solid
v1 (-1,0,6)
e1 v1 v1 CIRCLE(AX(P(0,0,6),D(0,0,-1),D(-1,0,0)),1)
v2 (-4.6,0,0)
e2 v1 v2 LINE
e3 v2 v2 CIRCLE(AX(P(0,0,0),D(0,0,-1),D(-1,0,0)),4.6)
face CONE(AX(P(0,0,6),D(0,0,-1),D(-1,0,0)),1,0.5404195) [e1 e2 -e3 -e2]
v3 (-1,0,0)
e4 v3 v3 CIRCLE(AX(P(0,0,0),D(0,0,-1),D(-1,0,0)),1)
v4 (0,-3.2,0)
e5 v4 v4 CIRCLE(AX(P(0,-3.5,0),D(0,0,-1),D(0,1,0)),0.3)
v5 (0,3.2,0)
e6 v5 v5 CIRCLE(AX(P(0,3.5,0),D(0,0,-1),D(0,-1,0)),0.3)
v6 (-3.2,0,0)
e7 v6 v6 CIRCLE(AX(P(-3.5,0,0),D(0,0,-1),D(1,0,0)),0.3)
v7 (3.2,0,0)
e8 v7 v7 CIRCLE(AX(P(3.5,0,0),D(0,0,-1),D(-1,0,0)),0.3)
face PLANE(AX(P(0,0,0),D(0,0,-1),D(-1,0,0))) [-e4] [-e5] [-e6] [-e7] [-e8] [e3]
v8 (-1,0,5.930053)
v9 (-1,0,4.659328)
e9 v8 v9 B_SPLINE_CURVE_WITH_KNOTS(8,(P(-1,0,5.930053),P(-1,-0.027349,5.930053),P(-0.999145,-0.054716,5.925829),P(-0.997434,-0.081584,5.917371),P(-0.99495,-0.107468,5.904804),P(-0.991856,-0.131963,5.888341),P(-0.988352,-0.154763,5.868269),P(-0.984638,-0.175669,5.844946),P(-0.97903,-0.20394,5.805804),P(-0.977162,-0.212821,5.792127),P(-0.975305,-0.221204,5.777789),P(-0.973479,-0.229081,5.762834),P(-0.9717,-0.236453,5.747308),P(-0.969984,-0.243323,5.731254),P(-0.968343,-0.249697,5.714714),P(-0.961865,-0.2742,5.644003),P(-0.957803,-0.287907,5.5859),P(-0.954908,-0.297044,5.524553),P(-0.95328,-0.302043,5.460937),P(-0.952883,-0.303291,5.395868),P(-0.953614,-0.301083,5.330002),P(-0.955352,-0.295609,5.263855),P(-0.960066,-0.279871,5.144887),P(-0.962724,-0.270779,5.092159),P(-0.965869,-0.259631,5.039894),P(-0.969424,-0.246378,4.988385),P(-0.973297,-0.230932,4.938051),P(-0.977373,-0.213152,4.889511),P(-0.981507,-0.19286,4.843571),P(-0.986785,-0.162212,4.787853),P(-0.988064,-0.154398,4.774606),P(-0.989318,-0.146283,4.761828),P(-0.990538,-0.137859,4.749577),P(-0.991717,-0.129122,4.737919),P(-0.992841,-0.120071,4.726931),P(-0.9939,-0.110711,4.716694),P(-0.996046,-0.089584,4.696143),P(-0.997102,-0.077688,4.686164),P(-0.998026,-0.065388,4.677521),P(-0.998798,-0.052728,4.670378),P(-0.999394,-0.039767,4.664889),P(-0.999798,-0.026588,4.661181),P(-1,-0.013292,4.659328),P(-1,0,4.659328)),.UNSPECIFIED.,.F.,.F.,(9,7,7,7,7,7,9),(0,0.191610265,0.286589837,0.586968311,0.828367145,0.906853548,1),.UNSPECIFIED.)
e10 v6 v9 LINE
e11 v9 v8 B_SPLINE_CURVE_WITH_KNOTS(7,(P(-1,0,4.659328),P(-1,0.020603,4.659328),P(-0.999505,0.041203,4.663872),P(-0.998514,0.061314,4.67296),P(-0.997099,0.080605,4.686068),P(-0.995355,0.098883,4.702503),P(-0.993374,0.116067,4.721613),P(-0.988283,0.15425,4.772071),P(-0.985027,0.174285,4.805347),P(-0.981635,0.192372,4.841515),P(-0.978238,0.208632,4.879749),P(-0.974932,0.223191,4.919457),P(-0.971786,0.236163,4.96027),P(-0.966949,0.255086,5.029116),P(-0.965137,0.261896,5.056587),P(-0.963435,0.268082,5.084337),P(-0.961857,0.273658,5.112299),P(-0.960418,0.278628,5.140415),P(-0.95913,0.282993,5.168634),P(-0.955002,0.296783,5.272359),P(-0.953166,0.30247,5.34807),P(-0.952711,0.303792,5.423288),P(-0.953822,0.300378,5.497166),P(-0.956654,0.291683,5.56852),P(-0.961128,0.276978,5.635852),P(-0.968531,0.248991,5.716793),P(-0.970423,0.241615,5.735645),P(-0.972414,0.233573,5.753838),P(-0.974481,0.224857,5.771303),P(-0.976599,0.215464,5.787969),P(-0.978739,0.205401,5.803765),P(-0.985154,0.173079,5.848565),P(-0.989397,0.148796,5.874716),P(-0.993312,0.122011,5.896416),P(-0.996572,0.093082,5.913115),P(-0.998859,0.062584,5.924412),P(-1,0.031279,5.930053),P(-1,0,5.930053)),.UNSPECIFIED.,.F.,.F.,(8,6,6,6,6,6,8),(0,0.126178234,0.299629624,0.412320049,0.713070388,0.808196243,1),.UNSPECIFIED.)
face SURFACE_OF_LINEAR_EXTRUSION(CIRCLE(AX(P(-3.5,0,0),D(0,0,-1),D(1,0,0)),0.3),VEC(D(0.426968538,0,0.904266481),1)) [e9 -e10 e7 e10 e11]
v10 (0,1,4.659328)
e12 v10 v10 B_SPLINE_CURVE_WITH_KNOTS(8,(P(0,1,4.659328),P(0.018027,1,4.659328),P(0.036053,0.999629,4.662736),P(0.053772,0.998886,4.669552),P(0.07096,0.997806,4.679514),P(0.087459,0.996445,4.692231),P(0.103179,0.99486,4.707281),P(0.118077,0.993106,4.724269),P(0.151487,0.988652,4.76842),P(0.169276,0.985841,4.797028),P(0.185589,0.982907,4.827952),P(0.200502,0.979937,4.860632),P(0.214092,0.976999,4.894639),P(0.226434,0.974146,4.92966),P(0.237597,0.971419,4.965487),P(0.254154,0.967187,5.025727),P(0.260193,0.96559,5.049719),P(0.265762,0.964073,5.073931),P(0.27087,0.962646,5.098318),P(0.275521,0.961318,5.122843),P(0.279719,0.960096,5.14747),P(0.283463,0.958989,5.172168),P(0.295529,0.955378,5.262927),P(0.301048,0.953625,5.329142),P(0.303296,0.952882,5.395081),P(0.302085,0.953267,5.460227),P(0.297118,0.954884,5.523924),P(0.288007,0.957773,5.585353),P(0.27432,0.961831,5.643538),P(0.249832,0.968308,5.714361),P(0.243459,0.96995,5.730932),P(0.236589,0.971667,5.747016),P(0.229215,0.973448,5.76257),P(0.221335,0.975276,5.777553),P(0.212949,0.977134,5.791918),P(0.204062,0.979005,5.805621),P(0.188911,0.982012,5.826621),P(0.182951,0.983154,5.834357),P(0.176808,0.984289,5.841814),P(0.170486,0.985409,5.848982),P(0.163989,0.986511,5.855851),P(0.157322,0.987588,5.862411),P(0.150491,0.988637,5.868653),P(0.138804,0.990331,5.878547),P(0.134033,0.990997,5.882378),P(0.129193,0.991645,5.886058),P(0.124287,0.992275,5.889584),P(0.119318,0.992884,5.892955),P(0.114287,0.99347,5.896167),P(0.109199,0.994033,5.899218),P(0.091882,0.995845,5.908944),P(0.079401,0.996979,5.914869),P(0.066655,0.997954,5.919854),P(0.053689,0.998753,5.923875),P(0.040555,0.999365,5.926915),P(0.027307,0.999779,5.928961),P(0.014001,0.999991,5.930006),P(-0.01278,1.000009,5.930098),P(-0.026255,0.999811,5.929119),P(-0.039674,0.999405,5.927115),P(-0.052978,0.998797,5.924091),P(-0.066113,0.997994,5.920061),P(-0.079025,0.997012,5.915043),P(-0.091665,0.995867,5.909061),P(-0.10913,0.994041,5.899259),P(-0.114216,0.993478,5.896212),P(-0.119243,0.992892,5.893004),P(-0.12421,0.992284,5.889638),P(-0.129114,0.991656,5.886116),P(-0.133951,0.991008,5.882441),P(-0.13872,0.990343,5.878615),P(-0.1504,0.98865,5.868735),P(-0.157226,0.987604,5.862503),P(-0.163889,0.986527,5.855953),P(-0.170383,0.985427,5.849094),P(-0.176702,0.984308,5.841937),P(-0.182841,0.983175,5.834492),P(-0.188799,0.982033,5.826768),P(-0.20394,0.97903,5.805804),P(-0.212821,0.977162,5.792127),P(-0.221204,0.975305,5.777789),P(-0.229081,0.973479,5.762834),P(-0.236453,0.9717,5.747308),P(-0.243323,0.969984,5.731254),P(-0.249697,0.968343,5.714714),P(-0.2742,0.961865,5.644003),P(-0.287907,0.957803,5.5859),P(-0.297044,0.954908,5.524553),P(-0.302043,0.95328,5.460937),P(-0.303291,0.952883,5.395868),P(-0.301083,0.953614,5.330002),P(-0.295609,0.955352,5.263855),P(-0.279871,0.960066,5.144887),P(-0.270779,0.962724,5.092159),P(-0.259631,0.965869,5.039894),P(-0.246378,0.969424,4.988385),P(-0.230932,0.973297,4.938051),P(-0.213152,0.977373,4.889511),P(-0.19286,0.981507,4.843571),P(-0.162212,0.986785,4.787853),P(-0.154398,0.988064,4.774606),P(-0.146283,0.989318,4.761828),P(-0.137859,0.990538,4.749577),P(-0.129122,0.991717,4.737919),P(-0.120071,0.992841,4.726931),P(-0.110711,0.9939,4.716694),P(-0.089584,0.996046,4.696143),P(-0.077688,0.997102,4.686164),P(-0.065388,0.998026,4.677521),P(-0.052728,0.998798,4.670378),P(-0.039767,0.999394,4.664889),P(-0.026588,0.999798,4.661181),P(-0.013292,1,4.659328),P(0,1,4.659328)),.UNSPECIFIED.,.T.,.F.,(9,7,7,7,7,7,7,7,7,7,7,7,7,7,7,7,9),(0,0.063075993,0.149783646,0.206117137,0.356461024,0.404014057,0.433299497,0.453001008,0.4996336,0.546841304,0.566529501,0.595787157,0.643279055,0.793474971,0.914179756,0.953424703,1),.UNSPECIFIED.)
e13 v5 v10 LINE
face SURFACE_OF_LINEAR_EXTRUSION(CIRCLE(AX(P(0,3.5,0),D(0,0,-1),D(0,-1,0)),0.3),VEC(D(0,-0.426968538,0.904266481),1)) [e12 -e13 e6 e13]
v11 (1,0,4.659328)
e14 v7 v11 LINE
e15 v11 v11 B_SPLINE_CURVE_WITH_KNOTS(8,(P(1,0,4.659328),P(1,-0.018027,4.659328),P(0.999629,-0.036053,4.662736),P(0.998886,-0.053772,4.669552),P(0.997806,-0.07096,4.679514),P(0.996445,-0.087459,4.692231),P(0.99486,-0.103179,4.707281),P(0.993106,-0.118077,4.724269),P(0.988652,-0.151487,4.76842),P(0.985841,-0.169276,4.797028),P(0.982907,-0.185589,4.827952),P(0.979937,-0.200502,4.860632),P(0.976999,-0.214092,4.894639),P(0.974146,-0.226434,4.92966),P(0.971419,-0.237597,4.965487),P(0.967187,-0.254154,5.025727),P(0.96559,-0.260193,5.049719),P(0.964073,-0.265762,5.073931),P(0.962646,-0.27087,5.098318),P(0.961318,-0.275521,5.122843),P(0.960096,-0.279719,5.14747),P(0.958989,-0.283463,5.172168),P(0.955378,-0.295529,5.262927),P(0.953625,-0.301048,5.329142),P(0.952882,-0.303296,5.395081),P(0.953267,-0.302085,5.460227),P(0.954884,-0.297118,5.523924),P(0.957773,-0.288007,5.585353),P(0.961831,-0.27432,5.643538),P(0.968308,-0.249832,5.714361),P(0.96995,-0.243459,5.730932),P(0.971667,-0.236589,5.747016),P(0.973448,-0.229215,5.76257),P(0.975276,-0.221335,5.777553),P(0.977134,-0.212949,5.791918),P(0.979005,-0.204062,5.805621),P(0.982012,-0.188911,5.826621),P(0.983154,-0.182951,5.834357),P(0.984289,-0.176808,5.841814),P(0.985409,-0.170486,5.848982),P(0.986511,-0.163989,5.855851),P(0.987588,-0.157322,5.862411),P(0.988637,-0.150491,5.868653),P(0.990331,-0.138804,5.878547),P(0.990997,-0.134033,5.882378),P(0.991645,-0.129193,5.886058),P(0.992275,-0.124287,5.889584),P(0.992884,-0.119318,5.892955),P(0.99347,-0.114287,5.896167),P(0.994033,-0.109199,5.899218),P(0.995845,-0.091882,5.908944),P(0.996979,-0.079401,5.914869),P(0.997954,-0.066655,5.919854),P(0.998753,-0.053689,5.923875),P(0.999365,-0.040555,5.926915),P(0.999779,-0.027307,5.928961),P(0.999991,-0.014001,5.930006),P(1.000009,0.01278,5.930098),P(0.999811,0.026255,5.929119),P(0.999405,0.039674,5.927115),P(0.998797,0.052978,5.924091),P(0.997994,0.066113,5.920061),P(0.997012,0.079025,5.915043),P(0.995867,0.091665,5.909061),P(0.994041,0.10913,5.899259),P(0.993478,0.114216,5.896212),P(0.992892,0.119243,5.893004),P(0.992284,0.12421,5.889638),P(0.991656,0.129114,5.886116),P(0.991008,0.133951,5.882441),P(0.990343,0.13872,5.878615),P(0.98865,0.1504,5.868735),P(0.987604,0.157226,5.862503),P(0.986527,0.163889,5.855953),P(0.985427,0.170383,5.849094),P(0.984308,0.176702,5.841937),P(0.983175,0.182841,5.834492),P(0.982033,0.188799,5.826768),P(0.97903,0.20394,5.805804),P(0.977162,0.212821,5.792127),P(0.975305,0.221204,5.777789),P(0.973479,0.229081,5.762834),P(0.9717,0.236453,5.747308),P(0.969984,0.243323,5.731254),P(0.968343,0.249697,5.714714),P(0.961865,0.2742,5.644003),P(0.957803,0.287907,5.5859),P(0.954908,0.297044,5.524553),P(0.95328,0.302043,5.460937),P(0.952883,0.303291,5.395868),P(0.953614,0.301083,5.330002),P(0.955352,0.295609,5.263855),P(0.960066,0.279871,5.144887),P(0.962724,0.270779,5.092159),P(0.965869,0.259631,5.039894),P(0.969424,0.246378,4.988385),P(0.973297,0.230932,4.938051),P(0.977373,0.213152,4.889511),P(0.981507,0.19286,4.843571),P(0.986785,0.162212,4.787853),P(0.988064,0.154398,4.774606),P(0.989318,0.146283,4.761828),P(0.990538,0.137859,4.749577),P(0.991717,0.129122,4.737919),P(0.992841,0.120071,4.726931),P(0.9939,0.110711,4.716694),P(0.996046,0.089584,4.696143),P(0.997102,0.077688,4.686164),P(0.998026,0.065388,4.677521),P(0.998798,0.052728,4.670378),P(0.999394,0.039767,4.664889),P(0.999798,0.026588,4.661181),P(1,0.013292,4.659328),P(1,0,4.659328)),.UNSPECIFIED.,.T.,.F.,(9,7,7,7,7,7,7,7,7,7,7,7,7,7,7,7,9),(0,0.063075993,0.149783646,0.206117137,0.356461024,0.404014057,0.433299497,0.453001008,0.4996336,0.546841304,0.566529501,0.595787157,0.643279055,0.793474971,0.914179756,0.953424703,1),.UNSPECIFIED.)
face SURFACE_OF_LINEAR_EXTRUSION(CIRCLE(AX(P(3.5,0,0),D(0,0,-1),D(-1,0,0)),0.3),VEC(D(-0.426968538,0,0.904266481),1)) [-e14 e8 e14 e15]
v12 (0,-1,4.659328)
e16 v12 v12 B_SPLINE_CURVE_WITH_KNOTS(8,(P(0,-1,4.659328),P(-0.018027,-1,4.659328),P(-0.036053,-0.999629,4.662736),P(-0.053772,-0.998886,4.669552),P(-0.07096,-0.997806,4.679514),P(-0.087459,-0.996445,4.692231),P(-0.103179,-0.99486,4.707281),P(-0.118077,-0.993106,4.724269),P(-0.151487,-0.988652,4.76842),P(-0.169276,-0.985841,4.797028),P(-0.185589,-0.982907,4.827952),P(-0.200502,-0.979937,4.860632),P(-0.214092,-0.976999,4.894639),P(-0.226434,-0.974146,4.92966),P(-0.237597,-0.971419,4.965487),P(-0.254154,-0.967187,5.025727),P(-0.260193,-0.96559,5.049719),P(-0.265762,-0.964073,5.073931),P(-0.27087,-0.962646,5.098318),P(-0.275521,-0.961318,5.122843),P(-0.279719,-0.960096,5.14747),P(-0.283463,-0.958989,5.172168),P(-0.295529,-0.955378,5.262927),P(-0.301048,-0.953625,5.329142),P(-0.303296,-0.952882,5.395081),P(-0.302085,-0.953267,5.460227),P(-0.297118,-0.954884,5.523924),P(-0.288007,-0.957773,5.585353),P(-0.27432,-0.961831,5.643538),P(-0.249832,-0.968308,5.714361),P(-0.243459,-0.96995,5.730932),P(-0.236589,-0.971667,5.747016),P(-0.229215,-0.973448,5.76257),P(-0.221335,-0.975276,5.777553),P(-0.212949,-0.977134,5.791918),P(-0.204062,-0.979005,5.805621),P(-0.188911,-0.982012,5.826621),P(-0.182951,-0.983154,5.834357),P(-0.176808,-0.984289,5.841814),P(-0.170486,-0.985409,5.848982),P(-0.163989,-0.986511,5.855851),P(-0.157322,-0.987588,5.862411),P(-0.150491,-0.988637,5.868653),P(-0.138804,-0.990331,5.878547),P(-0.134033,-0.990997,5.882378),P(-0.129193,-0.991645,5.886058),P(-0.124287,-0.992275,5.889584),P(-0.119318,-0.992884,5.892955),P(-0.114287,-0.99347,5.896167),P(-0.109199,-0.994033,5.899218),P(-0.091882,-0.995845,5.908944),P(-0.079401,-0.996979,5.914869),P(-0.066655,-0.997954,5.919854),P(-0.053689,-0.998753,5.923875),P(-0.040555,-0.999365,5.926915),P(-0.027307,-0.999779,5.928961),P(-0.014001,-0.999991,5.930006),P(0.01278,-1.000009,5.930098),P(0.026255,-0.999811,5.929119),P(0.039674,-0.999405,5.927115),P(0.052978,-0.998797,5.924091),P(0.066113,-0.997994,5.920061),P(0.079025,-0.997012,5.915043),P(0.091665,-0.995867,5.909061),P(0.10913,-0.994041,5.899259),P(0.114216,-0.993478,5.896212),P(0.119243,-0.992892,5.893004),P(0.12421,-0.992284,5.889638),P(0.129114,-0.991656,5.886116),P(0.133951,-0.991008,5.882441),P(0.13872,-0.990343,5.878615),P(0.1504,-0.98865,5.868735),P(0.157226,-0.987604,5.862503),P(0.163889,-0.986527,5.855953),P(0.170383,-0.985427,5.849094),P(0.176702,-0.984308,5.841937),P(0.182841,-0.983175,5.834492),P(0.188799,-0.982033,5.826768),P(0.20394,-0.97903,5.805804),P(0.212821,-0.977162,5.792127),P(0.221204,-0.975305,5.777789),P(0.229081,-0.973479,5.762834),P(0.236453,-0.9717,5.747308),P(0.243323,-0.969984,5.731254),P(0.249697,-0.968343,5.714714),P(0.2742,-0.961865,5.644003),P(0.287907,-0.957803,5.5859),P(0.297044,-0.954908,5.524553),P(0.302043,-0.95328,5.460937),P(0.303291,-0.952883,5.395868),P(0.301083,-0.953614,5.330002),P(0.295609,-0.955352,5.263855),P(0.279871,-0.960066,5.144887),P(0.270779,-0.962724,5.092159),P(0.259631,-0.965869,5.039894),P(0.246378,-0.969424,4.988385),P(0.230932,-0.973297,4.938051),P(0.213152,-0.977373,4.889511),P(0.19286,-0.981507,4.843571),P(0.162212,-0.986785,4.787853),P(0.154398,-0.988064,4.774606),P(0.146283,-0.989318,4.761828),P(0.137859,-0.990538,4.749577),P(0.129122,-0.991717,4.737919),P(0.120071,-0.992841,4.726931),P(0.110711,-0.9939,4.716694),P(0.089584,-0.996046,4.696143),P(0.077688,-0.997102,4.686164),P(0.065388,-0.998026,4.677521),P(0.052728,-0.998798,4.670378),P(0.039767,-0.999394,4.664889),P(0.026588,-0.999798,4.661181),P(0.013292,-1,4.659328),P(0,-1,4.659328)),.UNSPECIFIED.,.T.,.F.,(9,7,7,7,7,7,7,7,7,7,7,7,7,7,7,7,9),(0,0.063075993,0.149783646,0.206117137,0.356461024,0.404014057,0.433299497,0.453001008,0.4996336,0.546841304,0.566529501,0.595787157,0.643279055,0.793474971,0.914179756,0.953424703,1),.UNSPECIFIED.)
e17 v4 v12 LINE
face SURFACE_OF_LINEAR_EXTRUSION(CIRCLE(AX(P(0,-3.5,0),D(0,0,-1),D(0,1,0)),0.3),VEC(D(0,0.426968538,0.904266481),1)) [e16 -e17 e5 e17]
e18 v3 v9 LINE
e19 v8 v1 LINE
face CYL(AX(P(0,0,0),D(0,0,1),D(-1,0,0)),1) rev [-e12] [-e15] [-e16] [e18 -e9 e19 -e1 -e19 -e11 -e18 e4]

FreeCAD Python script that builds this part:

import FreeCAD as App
import Part
import Sketcher
from FreeCAD import Vector
Q = App.Units.Quantity


def add_polygon(sketch, points):
    """Adds a closed chain of lines whose ends are joined by coincident constraints."""
    first, n = sketch.GeometryCount, len(points)
    for a, b in zip(points, points[1:] + points[:1]):
        sketch.addGeometry(Part.LineSegment(App.Vector(*a, 0), App.Vector(*b, 0)), False)
    for i in range(n):
        sketch.addConstraint(Sketcher.Constraint("Coincident", first + i, 2, first + (i + 1) % n, 1))

doc = App.newDocument("Part")
body = doc.addObject("PartDesign::Body", "Body")

sketch1 = body.newObject("Sketcher::SketchObject", "Sketch")
sketch1.AttachmentSupport = (doc.getObject("XZ_Plane"), [""])
sketch1.MapMode = "FlatFace"
add_polygon(sketch1, [(-1, 0), (-1, 6), (-4.6, 0)])
sketch1.addConstraint(Sketcher.Constraint("Vertical", 0))
sketch1.addConstraint(Sketcher.Constraint("Horizontal", 2))
sketch1.addConstraint(Sketcher.Constraint("PointOnObject", 1, 2, -1))
sketch1.addConstraint(Sketcher.Constraint("DistanceY", 0, 1, 0, 2, Q("6 mm")))
sketch1.addConstraint(Sketcher.Constraint("DistanceX", 2, 1, 2, 2, Q("3.6 mm")))
sketch1.addConstraint(Sketcher.Constraint("DistanceX", 0, 2, -1, 1, Q("1 mm")))
revolution = body.newObject("PartDesign::Revolution", "Revolution")
revolution.Profile = sketch1
revolution.ReferenceAxis = (sketch1, ["V_Axis"])
revolution.Angle = 360

sketch2 = body.newObject("Sketcher::SketchObject", "Sketch001")
sketch2.AttachmentSupport = (doc.getObject("XY_Plane"), [""])
sketch2.MapMode = "FlatFace"
sketch2.addGeometry(Part.Circle(Vector(-3.5, 0, 0), Vector(0, 0, 1), 0.3), False)
sketch2.addConstraint(Sketcher.Constraint("PointOnObject", 0, 3, -1))
sketch2.addConstraint(Sketcher.Constraint("Diameter", 0, Q("0.6 mm")))
sketch2.addConstraint(Sketcher.Constraint("DistanceX", 0, 3, -1, 1, Q("3.5 mm")))

sketch3 = body.newObject("Sketcher::SketchObject", "Sketch002")
sketch3.Placement = App.Placement(Vector(-3.134258, 0, 1.479906), App.Rotation(Vector(0.426968538, 0, 0.904266481), Vector(0, 1.000000001, 0), Vector(-0.904266481, 0, 0.426968538), "ZXY"))
sketch3.addGeometry(Part.LineSegment(Vector(-1.636582, 0, 0), Vector(4.99863, 0, 0)), False)
sketch3.addConstraint(Sketcher.Constraint("Horizontal", 0))
sketch3.addConstraint(Sketcher.Constraint("PointOnObject", 0, 1, -1))
sketch3.addConstraint(Sketcher.Constraint("DistanceX", 0, 1, 0, 2, Q("6.635212 mm")))
sketch3.addConstraint(Sketcher.Constraint("DistanceX", 0, 1, -1, 1, Q("1.636582 mm")))
doc.recompute()

subtractivepipe = body.newObject("PartDesign::SubtractivePipe", "SubtractivePipe")
subtractivepipe.Profile = sketch2
subtractivepipe.Spine = (sketch3, ["Edge1"])
doc.recompute()

polarpattern = body.newObject("PartDesign::PolarPattern", "PolarPattern")
polarpattern.Originals = [subtractivepipe]
polarpattern.Axis = (doc.getObject("Z_Axis"), [""])
polarpattern.Angle = 360
polarpattern.Occurrences = 4
body.Tip = polarpattern

doc.recompute()
